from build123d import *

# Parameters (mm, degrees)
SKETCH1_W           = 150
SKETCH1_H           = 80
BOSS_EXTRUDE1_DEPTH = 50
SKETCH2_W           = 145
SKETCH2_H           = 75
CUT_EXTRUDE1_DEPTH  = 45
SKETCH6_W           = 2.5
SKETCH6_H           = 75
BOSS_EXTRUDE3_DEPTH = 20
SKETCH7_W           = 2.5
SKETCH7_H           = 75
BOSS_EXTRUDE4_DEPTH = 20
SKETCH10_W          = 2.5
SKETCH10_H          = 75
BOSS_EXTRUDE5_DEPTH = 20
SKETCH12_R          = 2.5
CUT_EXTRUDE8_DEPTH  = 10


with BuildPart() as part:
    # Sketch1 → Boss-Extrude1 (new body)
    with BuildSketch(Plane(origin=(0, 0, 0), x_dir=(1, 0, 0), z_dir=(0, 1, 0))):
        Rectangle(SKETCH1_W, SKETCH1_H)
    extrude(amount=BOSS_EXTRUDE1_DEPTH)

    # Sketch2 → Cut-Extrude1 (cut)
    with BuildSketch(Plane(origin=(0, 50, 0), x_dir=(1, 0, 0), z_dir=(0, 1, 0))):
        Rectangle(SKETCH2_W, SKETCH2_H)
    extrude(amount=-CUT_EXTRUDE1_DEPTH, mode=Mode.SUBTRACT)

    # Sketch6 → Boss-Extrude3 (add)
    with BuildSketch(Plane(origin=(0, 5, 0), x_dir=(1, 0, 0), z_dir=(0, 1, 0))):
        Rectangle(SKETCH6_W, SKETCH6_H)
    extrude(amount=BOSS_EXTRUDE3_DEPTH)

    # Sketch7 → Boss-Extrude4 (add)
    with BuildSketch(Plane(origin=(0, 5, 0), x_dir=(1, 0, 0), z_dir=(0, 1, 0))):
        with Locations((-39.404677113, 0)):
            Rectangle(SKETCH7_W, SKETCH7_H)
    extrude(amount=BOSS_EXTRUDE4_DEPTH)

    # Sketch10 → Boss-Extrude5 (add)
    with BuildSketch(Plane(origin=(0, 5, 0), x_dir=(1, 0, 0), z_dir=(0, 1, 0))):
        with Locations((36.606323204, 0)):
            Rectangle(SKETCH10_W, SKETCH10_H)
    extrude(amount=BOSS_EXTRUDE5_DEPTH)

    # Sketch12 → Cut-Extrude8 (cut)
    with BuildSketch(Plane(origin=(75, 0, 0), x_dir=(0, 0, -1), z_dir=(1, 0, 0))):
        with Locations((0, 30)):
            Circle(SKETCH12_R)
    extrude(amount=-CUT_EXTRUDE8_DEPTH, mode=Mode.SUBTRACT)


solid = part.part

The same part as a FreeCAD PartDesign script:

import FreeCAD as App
import Part
import Sketcher

doc = App.newDocument("Part")
body = doc.addObject("PartDesign::Body", "Body")

# Sketch on XZ plane
sketch1 = body.newObject("Sketcher::SketchObject", "Sketch")
sketch1.AttachmentSupport = (doc.getObject("XZ_Plane"), [""])
sketch1.MapMode = "FlatFace"
sketch1.addGeometry([
    Part.LineSegment(App.Vector(-75, -40, 0), App.Vector(-75, 40, 0)),
    Part.LineSegment(App.Vector(-75, 40, 0), App.Vector(75, 40, 0)),
    Part.LineSegment(App.Vector(75, 40, 0), App.Vector(75, -40, 0)),
    Part.LineSegment(App.Vector(75, -40, 0), App.Vector(-75, -40, 0)),
], False)
sketch1.addConstraint([
    Sketcher.Constraint("Coincident", 0, 2, 1, 1),
    Sketcher.Constraint("Coincident", 1, 2, 2, 1),
    Sketcher.Constraint("Coincident", 2, 2, 3, 1),
    Sketcher.Constraint("Coincident", 3, 2, 0, 1),
    Sketcher.Constraint("Vertical", 0),
    Sketcher.Constraint("Horizontal", 1),
    Sketcher.Constraint("Vertical", 2),
    Sketcher.Constraint("Horizontal", 3),
    Sketcher.Constraint("Symmetric", 0, 2, 2, 2, -1, 1),
    Sketcher.Constraint("DistanceX", 1, 1, 1, 2, 150.0),
    Sketcher.Constraint("DistanceY", 0, 1, 0, 2, 80.0),
])
pad1 = body.newObject("PartDesign::Pad", "Pad")
pad1.Profile = sketch1
pad1.Length = 50
pad1.Reversed = True

# Sketch on XZ plane
sketch2 = body.newObject("Sketcher::SketchObject", "Sketch001")
sketch2.AttachmentSupport = (doc.getObject("XZ_Plane"), [""])
sketch2.MapMode = "FlatFace"
sketch2.AttachmentOffset = App.Placement(App.Vector(0, 0, -50), App.Rotation())
sketch2.addGeometry([
    Part.LineSegment(App.Vector(-72, -38, 0), App.Vector(-72, 38, 0)),
    Part.LineSegment(App.Vector(-72, 38, 0), App.Vector(72, 38, 0)),
    Part.LineSegment(App.Vector(72, 38, 0), App.Vector(72, -38, 0)),
    Part.LineSegment(App.Vector(72, -38, 0), App.Vector(-72, -38, 0)),
], False)
sketch2.addConstraint([
    Sketcher.Constraint("Coincident", 0, 2, 1, 1),
    Sketcher.Constraint("Coincident", 1, 2, 2, 1),
    Sketcher.Constraint("Coincident", 2, 2, 3, 1),
    Sketcher.Constraint("Coincident", 3, 2, 0, 1),
    Sketcher.Constraint("Vertical", 0),
    Sketcher.Constraint("Horizontal", 1),
    Sketcher.Constraint("Vertical", 2),
    Sketcher.Constraint("Horizontal", 3),
    Sketcher.Constraint("Symmetric", 0, 2, 2, 2, -1, 1),
    Sketcher.Constraint("DistanceX", 1, 1, 1, 2, 145.0),
    Sketcher.Constraint("DistanceY", 0, 1, 0, 2, 75.0),
])
pocket1 = body.newObject("PartDesign::Pocket", "Pocket")
pocket1.Profile = sketch2
pocket1.Length = 45
pocket1.Reversed = True

# Sketch on XZ plane
sketch3 = body.newObject("Sketcher::SketchObject", "Sketch002")
sketch3.AttachmentSupport = (doc.getObject("XZ_Plane"), [""])
sketch3.MapMode = "FlatFace"
sketch3.AttachmentOffset = App.Placement(App.Vector(0, 0, -5), App.Rotation())
sketch3.addGeometry([
    Part.LineSegment(App.Vector(-1.2, -37.5, 0), App.Vector(-1.2, 37.5, 0)),
    Part.LineSegment(App.Vector(-1.2, 37.5, 0), App.Vector(1.2, 37.5, 0)),
    Part.LineSegment(App.Vector(1.2, 37.5, 0), App.Vector(1.2, -37.5, 0)),
    Part.LineSegment(App.Vector(1.2, -37.5, 0), App.Vector(-1.2, -37.5, 0)),
], False)
sketch3.addConstraint([
    Sketcher.Constraint("Coincident", 0, 2, 1, 1),
    Sketcher.Constraint("Coincident", 1, 2, 2, 1),
    Sketcher.Constraint("Coincident", 2, 2, 3, 1),
    Sketcher.Constraint("Coincident", 3, 2, 0, 1),
    Sketcher.Constraint("Vertical", 0),
    Sketcher.Constraint("Horizontal", 1),
    Sketcher.Constraint("Vertical", 2),
    Sketcher.Constraint("Horizontal", 3),
    Sketcher.Constraint("Symmetric", 0, 2, 2, 2, -1, 1),
    Sketcher.Constraint("DistanceY", 0, 1, 0, 2, 75.0),
    Sketcher.Constraint("DistanceX", 1, 1, 1, 2, 2.5),
])
pad2 = body.newObject("PartDesign::Pad", "Pad001")
pad2.Profile = sketch3
pad2.Length = 20
pad2.Reversed = True

# Sketch on XZ plane
sketch4 = body.newObject("Sketcher::SketchObject", "Sketch003")
sketch4.AttachmentSupport = (doc.getObject("XZ_Plane"), [""])
sketch4.MapMode = "FlatFace"
sketch4.AttachmentOffset = App.Placement(App.Vector(0, 0, -5), App.Rotation())
sketch4.addGeometry([
    Part.LineSegment(App.Vector(-40.7, -37.5, 0), App.Vector(-40.7, 37.5, 0)),
    Part.LineSegment(App.Vector(-40.7, 37.5, 0), App.Vector(-38.2, 37.5, 0)),
    Part.LineSegment(App.Vector(-38.2, 37.5, 0), App.Vector(-38.2, -37.5, 0)),
    Part.LineSegment(App.Vector(-38.2, -37.5, 0), App.Vector(-40.7, -37.5, 0)),
], False)
sketch4.addConstraint([
    Sketcher.Constraint("Coincident", 0, 2, 1, 1),
    Sketcher.Constraint("Coincident", 1, 2, 2, 1),
    Sketcher.Constraint("Coincident", 2, 2, 3, 1),
    Sketcher.Constraint("Coincident", 3, 2, 0, 1),
    Sketcher.Constraint("Vertical", 0),
    Sketcher.Constraint("Horizontal", 1),
    Sketcher.Constraint("Vertical", 2),
    Sketcher.Constraint("Horizontal", 3),
    Sketcher.Constraint("DistanceY", 0, 1, 0, 2, 75.0),
    Sketcher.Constraint("DistanceX", 1, 1, 1, 2, 2.5),
    Sketcher.Constraint("DistanceY", -1, 1, 0, 2, 37.5),
    Sketcher.Constraint("DistanceX", 0, 2, -1, 1, 40.654677),
])
pad3 = body.newObject("PartDesign::Pad", "Pad002")
pad3.Profile = sketch4
pad3.Length = 20
pad3.Reversed = True

# Sketch on XZ plane
sketch5 = body.newObject("Sketcher::SketchObject", "Sketch004")
sketch5.AttachmentSupport = (doc.getObject("XZ_Plane"), [""])
sketch5.MapMode = "FlatFace"
sketch5.AttachmentOffset = App.Placement(App.Vector(0, 0, -5), App.Rotation())
sketch5.addGeometry([
    Part.LineSegment(App.Vector(35.4, -37.5, 0), App.Vector(35.4, 37.5, 0)),
    Part.LineSegment(App.Vector(35.4, 37.5, 0), App.Vector(37.9, 37.5, 0)),
    Part.LineSegment(App.Vector(37.9, 37.5, 0), App.Vector(37.9, -37.5, 0)),
    Part.LineSegment(App.Vector(37.9, -37.5, 0), App.Vector(35.4, -37.5, 0)),
], False)
sketch5.addConstraint([
    Sketcher.Constraint("Coincident", 0, 2, 1, 1),
    Sketcher.Constraint("Coincident", 1, 2, 2, 1),
    Sketcher.Constraint("Coincident", 2, 2, 3, 1),
    Sketcher.Constraint("Coincident", 3, 2, 0, 1),
    Sketcher.Constraint("Vertical", 0),
    Sketcher.Constraint("Horizontal", 1),
    Sketcher.Constraint("Vertical", 2),
    Sketcher.Constraint("Horizontal", 3),
    Sketcher.Constraint("DistanceY", 0, 1, 0, 2, 75.0),
    Sketcher.Constraint("DistanceX", 1, 1, 1, 2, 2.5),
    Sketcher.Constraint("DistanceY", -1, 1, 0, 2, 37.5),
    Sketcher.Constraint("DistanceX", -1, 1, 0, 2, 35.356323),
])
pad4 = body.newObject("PartDesign::Pad", "Pad003")
pad4.Profile = sketch5
pad4.Length = 20
pad4.Reversed = True

# Sketch on YZ plane
sketch6 = body.newObject("Sketcher::SketchObject", "Sketch005")
sketch6.AttachmentSupport = (doc.getObject("YZ_Plane"), [""])
sketch6.MapMode = "FlatFace"
sketch6.AttachmentOffset = App.Placement(App.Vector(0, 0, 75), App.Rotation())
sketch6.addGeometry(Part.Circle(App.Vector(30, 0, 0), App.Vector(0, 0, 1), 2.5), False)
sketch6.addConstraint([
    Sketcher.Constraint("PointOnObject", 0, 3, -1),
    Sketcher.Constraint("Diameter", 0, 5.0),
    Sketcher.Constraint("DistanceX", -1, 1, 0, 3, 30.0),
])
pocket2 = body.newObject("PartDesign::Pocket", "Pocket001")
pocket2.Profile = sketch6
pocket2.Length = 10

doc.recompute()
